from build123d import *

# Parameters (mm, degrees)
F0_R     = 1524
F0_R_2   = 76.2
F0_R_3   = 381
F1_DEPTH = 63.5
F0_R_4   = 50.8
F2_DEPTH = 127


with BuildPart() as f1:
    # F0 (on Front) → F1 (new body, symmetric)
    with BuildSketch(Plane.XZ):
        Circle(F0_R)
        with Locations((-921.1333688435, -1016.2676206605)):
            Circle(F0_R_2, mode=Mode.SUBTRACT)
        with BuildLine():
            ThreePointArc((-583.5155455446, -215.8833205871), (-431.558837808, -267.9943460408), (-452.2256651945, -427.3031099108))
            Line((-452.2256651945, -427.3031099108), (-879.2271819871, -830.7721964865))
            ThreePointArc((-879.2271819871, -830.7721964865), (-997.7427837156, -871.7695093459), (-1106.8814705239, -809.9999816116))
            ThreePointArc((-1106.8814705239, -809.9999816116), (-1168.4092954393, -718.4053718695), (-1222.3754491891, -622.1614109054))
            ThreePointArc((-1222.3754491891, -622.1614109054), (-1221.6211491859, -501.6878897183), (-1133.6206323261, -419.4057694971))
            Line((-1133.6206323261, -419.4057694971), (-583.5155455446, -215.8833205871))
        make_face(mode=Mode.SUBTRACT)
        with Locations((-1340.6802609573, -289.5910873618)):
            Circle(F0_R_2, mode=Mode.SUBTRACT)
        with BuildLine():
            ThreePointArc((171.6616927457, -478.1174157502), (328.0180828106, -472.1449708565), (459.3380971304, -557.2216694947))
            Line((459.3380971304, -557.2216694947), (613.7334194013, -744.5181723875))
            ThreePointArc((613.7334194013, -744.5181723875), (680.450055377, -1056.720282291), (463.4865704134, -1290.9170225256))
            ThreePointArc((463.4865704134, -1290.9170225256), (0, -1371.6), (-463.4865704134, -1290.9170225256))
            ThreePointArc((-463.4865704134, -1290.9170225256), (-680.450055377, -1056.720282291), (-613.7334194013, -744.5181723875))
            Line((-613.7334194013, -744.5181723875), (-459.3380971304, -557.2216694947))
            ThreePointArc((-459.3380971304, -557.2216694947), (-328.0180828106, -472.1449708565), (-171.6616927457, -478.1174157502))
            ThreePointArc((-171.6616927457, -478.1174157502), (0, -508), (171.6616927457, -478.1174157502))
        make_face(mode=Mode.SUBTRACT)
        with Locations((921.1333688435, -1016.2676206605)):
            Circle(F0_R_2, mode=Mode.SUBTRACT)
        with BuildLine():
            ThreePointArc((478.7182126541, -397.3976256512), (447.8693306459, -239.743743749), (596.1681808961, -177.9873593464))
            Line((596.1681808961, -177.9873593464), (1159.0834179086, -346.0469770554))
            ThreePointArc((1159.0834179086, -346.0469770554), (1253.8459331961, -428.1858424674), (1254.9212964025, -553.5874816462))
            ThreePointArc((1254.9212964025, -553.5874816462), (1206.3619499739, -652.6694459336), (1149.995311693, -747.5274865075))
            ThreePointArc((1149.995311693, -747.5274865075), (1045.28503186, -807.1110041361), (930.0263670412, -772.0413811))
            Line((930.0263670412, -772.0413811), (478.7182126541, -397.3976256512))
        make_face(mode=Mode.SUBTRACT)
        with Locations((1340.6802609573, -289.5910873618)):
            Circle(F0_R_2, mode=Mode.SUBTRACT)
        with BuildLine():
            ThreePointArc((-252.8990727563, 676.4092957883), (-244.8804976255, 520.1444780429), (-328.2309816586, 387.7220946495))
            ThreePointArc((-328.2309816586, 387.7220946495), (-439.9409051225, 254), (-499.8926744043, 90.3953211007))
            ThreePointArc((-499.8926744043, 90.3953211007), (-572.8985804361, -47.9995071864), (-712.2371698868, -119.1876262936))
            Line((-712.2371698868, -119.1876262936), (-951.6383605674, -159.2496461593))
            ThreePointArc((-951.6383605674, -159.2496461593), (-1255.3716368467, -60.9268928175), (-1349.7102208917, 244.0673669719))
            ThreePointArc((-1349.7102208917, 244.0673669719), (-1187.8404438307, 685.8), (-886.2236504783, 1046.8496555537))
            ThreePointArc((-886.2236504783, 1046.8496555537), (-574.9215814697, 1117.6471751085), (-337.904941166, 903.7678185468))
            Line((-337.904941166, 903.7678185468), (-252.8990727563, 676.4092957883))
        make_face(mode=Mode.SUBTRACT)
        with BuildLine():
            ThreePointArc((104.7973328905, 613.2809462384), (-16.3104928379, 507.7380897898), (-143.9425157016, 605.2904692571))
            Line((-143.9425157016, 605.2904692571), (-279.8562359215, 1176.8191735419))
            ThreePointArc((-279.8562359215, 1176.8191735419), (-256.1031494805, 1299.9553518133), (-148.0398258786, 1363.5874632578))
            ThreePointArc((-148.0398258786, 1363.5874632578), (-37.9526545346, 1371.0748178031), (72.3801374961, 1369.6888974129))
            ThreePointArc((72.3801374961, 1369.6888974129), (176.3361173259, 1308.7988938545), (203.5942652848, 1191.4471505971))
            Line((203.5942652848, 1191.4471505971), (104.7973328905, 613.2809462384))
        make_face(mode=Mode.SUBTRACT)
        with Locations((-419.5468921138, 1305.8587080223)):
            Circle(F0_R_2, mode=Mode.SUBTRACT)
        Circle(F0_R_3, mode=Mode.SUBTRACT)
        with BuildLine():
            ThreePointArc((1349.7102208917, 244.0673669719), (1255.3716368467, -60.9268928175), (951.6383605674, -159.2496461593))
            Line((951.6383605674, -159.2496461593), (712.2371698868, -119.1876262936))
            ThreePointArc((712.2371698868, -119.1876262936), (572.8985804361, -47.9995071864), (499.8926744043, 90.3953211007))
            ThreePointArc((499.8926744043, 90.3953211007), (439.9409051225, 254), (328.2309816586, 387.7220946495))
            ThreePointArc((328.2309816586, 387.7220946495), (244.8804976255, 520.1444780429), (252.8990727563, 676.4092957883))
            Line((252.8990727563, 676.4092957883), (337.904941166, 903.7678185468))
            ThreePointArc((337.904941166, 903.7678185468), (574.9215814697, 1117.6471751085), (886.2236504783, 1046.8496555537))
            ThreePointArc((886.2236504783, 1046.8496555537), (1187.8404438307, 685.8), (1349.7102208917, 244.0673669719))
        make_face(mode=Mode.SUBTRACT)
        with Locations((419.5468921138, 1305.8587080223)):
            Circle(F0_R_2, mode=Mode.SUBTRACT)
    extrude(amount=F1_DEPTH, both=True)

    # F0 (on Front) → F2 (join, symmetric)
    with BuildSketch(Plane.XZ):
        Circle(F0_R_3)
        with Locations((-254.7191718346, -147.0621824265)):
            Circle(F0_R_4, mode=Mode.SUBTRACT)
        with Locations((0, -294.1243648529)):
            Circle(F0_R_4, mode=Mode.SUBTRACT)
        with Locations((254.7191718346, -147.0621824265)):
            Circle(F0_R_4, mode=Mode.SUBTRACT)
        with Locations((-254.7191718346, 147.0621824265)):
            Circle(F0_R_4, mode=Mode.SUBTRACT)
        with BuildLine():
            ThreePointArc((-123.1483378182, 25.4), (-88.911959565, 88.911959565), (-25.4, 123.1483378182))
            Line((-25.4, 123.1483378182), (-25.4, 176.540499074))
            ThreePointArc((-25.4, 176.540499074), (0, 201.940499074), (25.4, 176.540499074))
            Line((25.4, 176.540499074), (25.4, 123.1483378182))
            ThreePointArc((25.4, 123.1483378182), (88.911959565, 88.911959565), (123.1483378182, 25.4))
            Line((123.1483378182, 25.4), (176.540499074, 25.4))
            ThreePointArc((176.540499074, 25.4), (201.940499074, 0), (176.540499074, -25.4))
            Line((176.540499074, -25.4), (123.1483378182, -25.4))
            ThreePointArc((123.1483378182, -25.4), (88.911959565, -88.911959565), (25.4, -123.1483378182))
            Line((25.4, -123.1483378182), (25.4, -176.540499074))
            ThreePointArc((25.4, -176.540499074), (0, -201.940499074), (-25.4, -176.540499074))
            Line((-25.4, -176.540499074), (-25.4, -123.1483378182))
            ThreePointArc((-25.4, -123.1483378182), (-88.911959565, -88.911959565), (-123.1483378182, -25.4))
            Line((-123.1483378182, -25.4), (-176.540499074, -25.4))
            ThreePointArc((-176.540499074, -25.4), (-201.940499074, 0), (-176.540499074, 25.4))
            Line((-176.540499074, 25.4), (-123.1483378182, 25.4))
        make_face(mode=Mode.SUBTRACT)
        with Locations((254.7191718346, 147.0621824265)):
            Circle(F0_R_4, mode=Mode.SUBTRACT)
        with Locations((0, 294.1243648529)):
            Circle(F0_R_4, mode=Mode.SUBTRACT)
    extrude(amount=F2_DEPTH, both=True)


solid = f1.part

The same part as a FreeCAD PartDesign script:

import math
import FreeCAD as App
import Part
import Sketcher

V = App.Vector
Q = App.Units.Quantity

doc = App.newDocument("Part")
body = doc.addObject("PartDesign::Body", "Body")

# Sketch on XZ plane
sketch1 = body.newObject("Sketcher::SketchObject", "Sketch")
sketch1.AttachmentSupport = (doc.getObject("XZ_Plane"), [""])
sketch1.MapMode = "FlatFace"
sketch1.addGeometry([
    Part.Circle(V(0, 0, 0), V(0, 0, 1), 1524),  # 0
    Part.Circle(V(-921.133369, -1016.267621, 0), V(0, 0, 1), 76.2),  # 1
    Part.LineSegment(V(-1133.620632, -419.405769, 0), V(-583.515546, -215.883321, 0)),  # 2
    Part.ArcOfCircle(Part.Circle(V(-539.448547, -334.992933, 0), V(0, 0, 1), 127), math.radians(-46.623114), math.radians(110.302968)),  # 3
    Part.LineSegment(V(-452.225665, -427.30311, 0), V(-879.227182, -830.772196, 0)),  # 4
    Part.ArcOfCircle(Part.Circle(V(-983.89464, -719.999984, 0), V(0, 0, 1), 152.4), math.radians(-143.80387), math.radians(-46.623114)),  # 5
    Part.ArcOfCircle(Part.Circle(V(0, 0, 0), V(0, 0, 1), 1371.6), math.radians(-153.024937), math.radians(-143.80387)),  # 6
    Part.ArcOfCircle(Part.Circle(V(-1082.01122, -562.801127, 0), V(0, 0, 1), 152.4), math.radians(109.794307), math.radians(202.923589)),  # 7
    Part.Circle(V(-1340.680261, -289.591087, 0), V(0, 0, 1), 76.2),  # 8
    Part.ArcOfCircle(Part.Circle(V(0, 0, 0), V(0, 0, 1), 508), math.radians(-109.75), math.radians(-70.25)),  # 9
    Part.ArcOfCircle(Part.Circle(V(259.275075, -722.140898, 0), V(0, 0, 1), 259.275075), math.radians(39.5), math.radians(109.75)),  # 10
    Part.LineSegment(V(459.338097, -557.221669, 0), V(613.733419, -744.518172, 0)),  # 11
    Part.ArcOfCircle(Part.Circle(V(346.424082, -964.870986, 0), V(0, 0, 1), 346.424082), math.radians(-70.25), math.radians(39.5)),  # 12
    Part.ArcOfCircle(Part.Circle(V(0, 0, 0), V(0, 0, 1), 1371.6), math.radians(-109.75), math.radians(-70.25)),  # 13
    Part.ArcOfCircle(Part.Circle(V(-346.424082, -964.870986, 0), V(0, 0, 1), 346.424082), math.radians(140.5), math.radians(250.25)),  # 14
    Part.LineSegment(V(-613.733419, -744.518172, 0), V(-459.338097, -557.221669, 0)),  # 15
    Part.ArcOfCircle(Part.Circle(V(-259.275075, -722.140898, 0), V(0, 0, 1), 259.275075), math.radians(70.25), math.radians(140.5)),  # 16
    Part.Circle(V(921.133369, -1016.267621, 0), V(0, 0, 1), 76.2),  # 17
    Part.Circle(V(0, 0, 0), V(0, 0, 1), 381),  # 18
    Part.LineSegment(V(930.026367, -772.041381, 0), V(478.718213, -397.397626, 0)),  # 19
    Part.ArcOfCircle(Part.Circle(V(559.836663, -299.67968, 0), V(0, 0, 1), 127), math.radians(73.376886), math.radians(230.302968)),  # 20
    Part.LineSegment(V(596.168181, -177.987359, 0), V(1159.083418, -346.046977, 0)),  # 21
    Part.ArcOfCircle(Part.Circle(V(1115.485597, -492.077761, 0), V(0, 0, 1), 152.4), math.radians(-23.80387), math.radians(73.376886)),  # 22
    Part.ArcOfCircle(Part.Circle(V(0, 0, 0), V(0, 0, 1), 1371.6), math.radians(-33.024937), math.radians(-23.80387)),  # 23
    Part.ArcOfCircle(Part.Circle(V(1028.405684, -655.64864, 0), V(0, 0, 1), 152.4), math.radians(-130.205693), math.radians(-37.076411)),  # 24
    Part.Circle(V(1340.680261, -289.591087, 0), V(0, 0, 1), 76.2),  # 25
    Part.LineSegment(V(-337.904941, 903.767819, 0), V(-252.899073, 676.409296, 0)),  # 26
    Part.ArcOfCircle(Part.Circle(V(-495.754825, 585.609251, 0), V(0, 0, 1), 259.275075), math.radians(-49.75), math.radians(20.5)),  # 27
    Part.ArcOfCircle(Part.Circle(V(0, 0, 0), V(0, 0, 1), 508), math.radians(130.25), math.radians(169.75)),  # 28
    Part.ArcOfCircle(Part.Circle(V(-755.0299, 136.531647, 0), V(0, 0, 1), 259.275075), math.radians(-80.5), math.radians(-10.25)),  # 29
    Part.LineSegment(V(-712.23717, -119.187626, 0), V(-951.638361, -159.249646, 0)),  # 30
    Part.ArcOfCircle(Part.Circle(V(-1008.814826, 182.423438, 0), V(0, 0, 1), 346.424082), math.radians(169.75), math.radians(279.5)),  # 31
    Part.ArcOfCircle(Part.Circle(V(0, 0, 0), V(0, 0, 1), 1371.6), math.radians(130.25), math.radians(169.75)),  # 32
    Part.ArcOfCircle(Part.Circle(V(-662.390744, 782.447548, 0), V(0, 0, 1), 346.424082), math.radians(20.5), math.radians(130.25)),  # 33
    Part.LineSegment(V(203.594265, 1191.447151, 0), V(104.797333, 613.280946, 0)),  # 34
    Part.ArcOfCircle(Part.Circle(V(-20.388116, 634.672612, 0), V(0, 0, 1), 127), math.radians(-166.623114), math.radians(-9.697032)),  # 35
    Part.LineSegment(V(-143.942516, 605.290469, 0), V(-279.856236, 1176.819174, 0)),  # 36
    Part.ArcOfCircle(Part.Circle(V(-131.590956, 1212.077745, 0), V(0, 0, 1), 152.4), math.radians(96.19613), math.radians(193.376886)),  # 37
    Part.ArcOfCircle(Part.Circle(V(0, 0, 0), V(0, 0, 1), 1371.6), math.radians(86.975063), math.radians(96.19613)),  # 38
    Part.ArcOfCircle(Part.Circle(V(53.605537, 1218.449768, 0), V(0, 0, 1), 152.4), math.radians(-10.205693), math.radians(82.923589)),  # 39
    Part.Circle(V(-419.546892, 1305.858708, 0), V(0, 0, 1), 76.2),  # 40
    Part.ArcOfCircle(Part.Circle(V(0, 0, 0), V(0, 0, 1), 1371.6), math.radians(10.25), math.radians(49.75)),  # 41
    Part.ArcOfCircle(Part.Circle(V(1008.814826, 182.423438, 0), V(0, 0, 1), 346.424082), math.radians(-99.5), math.radians(10.25)),  # 42
    Part.LineSegment(V(951.638361, -159.249646, 0), V(712.23717, -119.187626, 0)),  # 43
    Part.ArcOfCircle(Part.Circle(V(755.0299, 136.531647, 0), V(0, 0, 1), 259.275075), math.radians(-169.75), math.radians(-99.5)),  # 44
    Part.ArcOfCircle(Part.Circle(V(0, 0, 0), V(0, 0, 1), 508), math.radians(10.25), math.radians(49.75)),  # 45
    Part.ArcOfCircle(Part.Circle(V(495.754825, 585.609251, 0), V(0, 0, 1), 259.275075), math.radians(159.5), math.radians(229.75)),  # 46
    Part.LineSegment(V(252.899073, 676.409296, 0), V(337.904941, 903.767819, 0)),  # 47
    Part.ArcOfCircle(Part.Circle(V(662.390744, 782.447548, 0), V(0, 0, 1), 346.424082), math.radians(49.75), math.radians(159.5)),  # 48
    Part.Circle(V(419.546892, 1305.858708, 0), V(0, 0, 1), 76.2),  # 49
], False)
sketch1.addConstraint([
    Sketcher.Constraint("Tangent", 2, 2, 3, 2),
    Sketcher.Constraint("Tangent", 3, 1, 4, 1),
    Sketcher.Constraint("Tangent", 4, 2, 5, 2),
    Sketcher.Constraint("Tangent", 5, 1, 6, 2),
    Sketcher.Constraint("Coincident", 6, 1, 7, 2),
    Sketcher.Constraint("Coincident", 7, 1, 2, 1),
    Sketcher.Constraint("Tangent", 9, 2, 10, 2),
    Sketcher.Constraint("Tangent", 10, 1, 11, 1),
    Sketcher.Constraint("Tangent", 11, 2, 12, 2),
    Sketcher.Constraint("Tangent", 12, 1, 13, 2),
    Sketcher.Constraint("Tangent", 13, 1, 14, 2),
    Sketcher.Constraint("Tangent", 14, 1, 15, 1),
    Sketcher.Constraint("Tangent", 15, 2, 16, 2),
    Sketcher.Constraint("Tangent", 16, 1, 9, 1),
    Sketcher.Constraint("Tangent", 19, 2, 20, 2),
    Sketcher.Constraint("Tangent", 20, 1, 21, 1),
    Sketcher.Constraint("Tangent", 21, 2, 22, 2),
    Sketcher.Constraint("Tangent", 22, 1, 23, 2),
    Sketcher.Constraint("Coincident", 23, 1, 24, 2),
    Sketcher.Constraint("Coincident", 24, 1, 19, 1),
    Sketcher.Constraint("Tangent", 26, 2, 27, 2),
    Sketcher.Constraint("Tangent", 27, 1, 28, 1),
    Sketcher.Constraint("Tangent", 28, 2, 29, 2),
    Sketcher.Constraint("Tangent", 29, 1, 30, 1),
    Sketcher.Constraint("Tangent", 30, 2, 31, 2),
    Sketcher.Constraint("Tangent", 31, 1, 32, 2),
    Sketcher.Constraint("Tangent", 32, 1, 33, 2),
    Sketcher.Constraint("Tangent", 33, 1, 26, 1),
    Sketcher.Constraint("Tangent", 34, 2, 35, 2),
    Sketcher.Constraint("Tangent", 35, 1, 36, 1),
    Sketcher.Constraint("Tangent", 36, 2, 37, 2),
    Sketcher.Constraint("Tangent", 37, 1, 38, 2),
    Sketcher.Constraint("Coincident", 38, 1, 39, 2),
    Sketcher.Constraint("Coincident", 39, 1, 34, 1),
    Sketcher.Constraint("Tangent", 41, 1, 42, 2),
    Sketcher.Constraint("Tangent", 42, 1, 43, 1),
    Sketcher.Constraint("Tangent", 43, 2, 44, 2),
    Sketcher.Constraint("Tangent", 44, 1, 45, 1),
    Sketcher.Constraint("Tangent", 45, 2, 46, 2),
    Sketcher.Constraint("Tangent", 46, 1, 47, 1),
    Sketcher.Constraint("Tangent", 47, 2, 48, 2),
    Sketcher.Constraint("Tangent", 48, 1, 41, 2),
    Sketcher.Constraint("Coincident", 0, 3, -1, 1),
    Sketcher.Constraint("Coincident", 6, 3, -1, 1),
    Sketcher.Constraint("Coincident", 9, 3, -1, 1),
    Sketcher.Constraint("Coincident", 13, 3, -1, 1),
    Sketcher.Constraint("Coincident", 18, 3, -1, 1),
    Sketcher.Constraint("Coincident", 23, 3, -1, 1),
    Sketcher.Constraint("Coincident", 28, 3, -1, 1),
    Sketcher.Constraint("Coincident", 32, 3, -1, 1),
    Sketcher.Constraint("Coincident", 38, 3, -1, 1),
    Sketcher.Constraint("Coincident", 41, 3, -1, 1),
    Sketcher.Constraint("Coincident", 45, 3, -1, 1),
    Sketcher.Constraint("Equal", 5, 7),
    Sketcher.Constraint("Equal", 1, 8),
    Sketcher.Constraint("Equal", 6, 13),
    Sketcher.Constraint("Equal", 12, 14),
    Sketcher.Constraint("Equal", 10, 16),
    Sketcher.Constraint("Equal", 8, 17),
    Sketcher.Constraint("Equal", 3, 20),
    Sketcher.Constraint("Equal", 7, 22),
    Sketcher.Constraint("Equal", 13, 23),
    Sketcher.Constraint("Equal", 22, 24),
    Sketcher.Constraint("Equal", 17, 25),
    Sketcher.Constraint("Equal", 16, 27),
    Sketcher.Constraint("Equal", 9, 28),
    Sketcher.Constraint("Equal", 27, 29),
    Sketcher.Constraint("Equal", 14, 31),
    Sketcher.Constraint("Equal", 23, 32),
    Sketcher.Constraint("Equal", 31, 33),
    Sketcher.Constraint("Equal", 20, 35),
    Sketcher.Constraint("Equal", 24, 37),
    Sketcher.Constraint("Equal", 32, 38),
    Sketcher.Constraint("Equal", 37, 39),
    Sketcher.Constraint("Equal", 25, 40),
    Sketcher.Constraint("Equal", 38, 41),
    Sketcher.Constraint("Equal", 33, 42),
    Sketcher.Constraint("Equal", 29, 44),
    Sketcher.Constraint("Equal", 28, 45),
    Sketcher.Constraint("Equal", 44, 46),
    Sketcher.Constraint("Equal", 42, 48),
    Sketcher.Constraint("Equal", 40, 49),
    Sketcher.Constraint("Symmetric", 1, 3, 17, 3, -2),
    Sketcher.Constraint("Symmetric", 8, 3, 25, 3, -2),
    Sketcher.Constraint("Symmetric", 40, 3, 49, 3, -2),
    Sketcher.Constraint("Symmetric", 11, 2, 14, 1, -2),
    Sketcher.Constraint("Symmetric", 30, 2, 42, 1, -2),
    Sketcher.Constraint("Symmetric", 26, 2, 46, 1, -2),
    Sketcher.Constraint("Equal", 2, 19),
    Sketcher.Constraint("Equal", 4, 21),
    Sketcher.Constraint("Equal", 19, 34),
    Sketcher.Constraint("Equal", 21, 36),
    Sketcher.Constraint("Diameter", 0, Q("120 in")),
    Sketcher.Constraint("Diameter", 1, Q("6 in")),
    Sketcher.Constraint("Diameter", 18, Q("30 in")),
    Sketcher.Constraint("Radius", 3, Q("5 in")),
    Sketcher.Constraint("Radius", 5, Q("6 in")),
    Sketcher.Constraint("Radius", 6, Q("54 in")),
    Sketcher.Constraint("Radius", 9, Q("20 in")),
    Sketcher.Constraint("Angle", 11, Q("-50.5 deg")),
    Sketcher.Constraint("Angle", 26, Q("-69.5 deg")),
    Sketcher.Constraint("Angle", 30, Q("-170.5 deg")),
    Sketcher.Constraint("Radius", 12, 346.424082),
    Sketcher.Constraint("Radius", 10, 259.275075),
    Sketcher.Constraint("DistanceX", 29, 3, -1, 1, 755.0299),
    Sketcher.Constraint("DistanceX", 1, 3, -1, 1, 921.133369),
    Sketcher.Constraint("DistanceY", 1, 3, -1, 1, 1016.267621),
    Sketcher.Constraint("DistanceX", 5, 3, -1, 1, 983.89464),
    Sketcher.Constraint("DistanceX", 7, 3, -1, 1, 1082.01122),
    Sketcher.Constraint("DistanceX", 8, 3, -1, 1, 1340.680261),
    Sketcher.Constraint("DistanceX", -1, 1, 12, 3, 346.424082),
    Sketcher.Constraint("DistanceY", 20, 3, -1, 1, 299.67968),
    Sketcher.Constraint("DistanceY", 22, 3, -1, 1, 492.077761),
    Sketcher.Constraint("DistanceY", 24, 3, -1, 1, 655.64864),
    Sketcher.Constraint("DistanceY", -1, 1, 27, 3, 585.609251),
    Sketcher.Constraint("DistanceY", -1, 1, 40, 3, 1305.858708),
    Sketcher.Constraint("DistanceY", 2, 2, -1, 1, 215.883321),
    Sketcher.Constraint("DistanceX", 4, 2, -1, 1, 879.227182),
    Sketcher.Constraint("DistanceX", 6, 1, -1, 1, 1222.375449),
    Sketcher.Constraint("DistanceY", 7, 1, -1, 1, 419.405769),
    Sketcher.Constraint("DistanceX", -1, 1, 23, 1, 1149.995312),
    Sketcher.Constraint("DistanceY", -1, 1, 39, 1, 1191.447151),
    Sketcher.Constraint("DistanceY", 8, 3, -1, 1, 289.591087),
    Sketcher.Constraint("DistanceX", 35, 3, -1, 1, 20.388116),
    Sketcher.Constraint("DistanceY", -1, 1, 35, 3, 634.672612),
    Sketcher.Constraint("DistanceX", -1, 1, 39, 3, 53.605537),
    Sketcher.Constraint("DistanceX", 40, 3, -1, 1, 419.546892),
])
pad1 = body.newObject("PartDesign::Pad", "Pad")
pad1.Profile = sketch1
pad1.Length = Q("5 in")
pad1.Midplane = True

# Sketch on XZ plane
sketch2 = body.newObject("Sketcher::SketchObject", "Sketch001")
sketch2.AttachmentSupport = (doc.getObject("XZ_Plane"), [""])
sketch2.MapMode = "FlatFace"
sketch2.addGeometry([
    Part.Circle(V(0, 0, 0), V(0, 0, 1), 381),  # 0
    Part.Circle(V(-254.719172, -147.062182, 0), V(0, 0, 1), 50.8),  # 1
    Part.Circle(V(0, -294.124365, 0), V(0, 0, 1), 50.8),  # 2
    Part.Circle(V(254.719172, -147.062182, 0), V(0, 0, 1), 50.8),  # 3
    Part.Circle(V(-254.719172, 147.062182, 0), V(0, 0, 1), 50.8),  # 4
    Part.LineSegment(V(-176.540499, 25.4, 0), V(-123.148338, 25.4, 0)),  # 5
    Part.ArcOfCircle(Part.Circle(V(0, 0, 0), V(0, 0, 1), 125.740499), math.radians(101.654133), math.radians(168.345867)),  # 6
    Part.LineSegment(V(-25.4, 123.148338, 0), V(-25.4, 176.540499, 0)),  # 7
    Part.ArcOfCircle(Part.Circle(V(0, 176.540499, 0), V(0, 0, 1), 25.4), math.radians(0), math.radians(180)),  # 8
    Part.LineSegment(V(25.4, 176.540499, 0), V(25.4, 123.148338, 0)),  # 9
    Part.ArcOfCircle(Part.Circle(V(0, 0, 0), V(0, 0, 1), 125.740499), math.radians(11.654133), math.radians(78.345867)),  # 10
    Part.LineSegment(V(123.148338, 25.4, 0), V(176.540499, 25.4, 0)),  # 11
    Part.ArcOfCircle(Part.Circle(V(176.540499, 0, 0), V(0, 0, 1), 25.4), math.radians(-90), math.radians(90)),  # 12
    Part.LineSegment(V(176.540499, -25.4, 0), V(123.148338, -25.4, 0)),  # 13
    Part.ArcOfCircle(Part.Circle(V(0, 0, 0), V(0, 0, 1), 125.740499), math.radians(-78.345867), math.radians(-11.654133)),  # 14
    Part.LineSegment(V(25.4, -123.148338, 0), V(25.4, -176.540499, 0)),  # 15
    Part.ArcOfCircle(Part.Circle(V(0, -176.540499, 0), V(0, 0, 1), 25.4), math.radians(180), math.radians(360)),  # 16
    Part.LineSegment(V(-25.4, -176.540499, 0), V(-25.4, -123.148338, 0)),  # 17
    Part.ArcOfCircle(Part.Circle(V(0, 0, 0), V(0, 0, 1), 125.740499), math.radians(-168.345867), math.radians(-101.654133)),  # 18
    Part.LineSegment(V(-123.148338, -25.4, 0), V(-176.540499, -25.4, 0)),  # 19
    Part.ArcOfCircle(Part.Circle(V(-176.540499, 0, 0), V(0, 0, 1), 25.4), math.radians(90), math.radians(270)),  # 20
    Part.Circle(V(254.719172, 147.062182, 0), V(0, 0, 1), 50.8),  # 21
    Part.Circle(V(0, 294.124365, 0), V(0, 0, 1), 50.8),  # 22
], False)
sketch2.addConstraint([
    Sketcher.Constraint("Coincident", 5, 2, 6, 2),
    Sketcher.Constraint("Coincident", 6, 1, 7, 1),
    Sketcher.Constraint("Tangent", 7, 2, 8, 2),
    Sketcher.Constraint("Tangent", 8, 1, 9, 1),
    Sketcher.Constraint("Coincident", 9, 2, 10, 2),
    Sketcher.Constraint("Coincident", 10, 1, 11, 1),
    Sketcher.Constraint("Tangent", 11, 2, 12, 2),
    Sketcher.Constraint("Tangent", 12, 1, 13, 1),
    Sketcher.Constraint("Coincident", 13, 2, 14, 2),
    Sketcher.Constraint("Coincident", 14, 1, 15, 1),
    Sketcher.Constraint("Tangent", 15, 2, 16, 2),
    Sketcher.Constraint("Tangent", 16, 1, 17, 1),
    Sketcher.Constraint("Coincident", 17, 2, 18, 2),
    Sketcher.Constraint("Coincident", 18, 1, 19, 1),
    Sketcher.Constraint("Tangent", 19, 2, 20, 2),
    Sketcher.Constraint("Tangent", 20, 1, 5, 1),
    Sketcher.Constraint("Horizontal", 5),
    Sketcher.Constraint("Vertical", 7),
    Sketcher.Constraint("Vertical", 9),
    Sketcher.Constraint("Horizontal", 11),
    Sketcher.Constraint("Horizontal", 13),
    Sketcher.Constraint("Vertical", 15),
    Sketcher.Constraint("Vertical", 17),
    Sketcher.Constraint("Horizontal", 19),
    Sketcher.Constraint("Coincident", 0, 3, -1, 1),
    Sketcher.Constraint("Coincident", 6, 3, -1, 1),
    Sketcher.Constraint("Coincident", 10, 3, -1, 1),
    Sketcher.Constraint("Coincident", 14, 3, -1, 1),
    Sketcher.Constraint("Coincident", 18, 3, -1, 1),
    Sketcher.Constraint("Equal", 1, 2),
    Sketcher.Constraint("Equal", 2, 3),
    Sketcher.Constraint("Equal", 3, 4),
    Sketcher.Constraint("Equal", 6, 10),
    Sketcher.Constraint("Equal", 8, 12),
    Sketcher.Constraint("Equal", 10, 14),
    Sketcher.Constraint("Equal", 12, 16),
    Sketcher.Constraint("Equal", 14, 18),
    Sketcher.Constraint("Equal", 16, 20),
    Sketcher.Constraint("Equal", 4, 21),
    Sketcher.Constraint("Equal", 21, 22),
    Sketcher.Constraint("Symmetric", 3, 3, 4, 3, -1, 1),
    Sketcher.Constraint("Symmetric", 8, 3, 16, 3, -1, 1),
    Sketcher.Constraint("Symmetric", 12, 3, 20, 3, -1, 1),
    Sketcher.Constraint("Symmetric", 1, 3, 21, 3, -1, 1),
    Sketcher.Constraint("Symmetric", 2, 3, 22, 3, -1, 1),
    Sketcher.Constraint("Symmetric", 1, 3, 3, 3, -2),
    Sketcher.Constraint("PointOnObject", 2, 3, -2),
    Sketcher.Constraint("PointOnObject", 8, 3, -2),
    Sketcher.Constraint("PointOnObject", 12, 3, -1),
    Sketcher.Constraint("Equal", 19, 7),
    Sketcher.Constraint("Diameter", 0, Q("30 in")),
    Sketcher.Constraint("Diameter", 1, Q("4 in")),
    Sketcher.Constraint("Radius", 8, Q("1 in")),
    Sketcher.Constraint("Radius", 6, 125.740499),
    Sketcher.Constraint("DistanceX", 5, 1, 5, 2, 53.392161),
    Sketcher.Constraint("DistanceX", 1, 3, -1, 1, 254.719172),
    Sketcher.Constraint("DistanceY", 1, 3, 8, 3, 323.602682),
    Sketcher.Constraint("DistanceY", 2, 3, -1, 1, 294.124365),
])
pad2 = body.newObject("PartDesign::Pad", "Pad001")
pad2.Profile = sketch2
pad2.Length = Q("10 in")
pad2.Midplane = True

doc.recompute()
